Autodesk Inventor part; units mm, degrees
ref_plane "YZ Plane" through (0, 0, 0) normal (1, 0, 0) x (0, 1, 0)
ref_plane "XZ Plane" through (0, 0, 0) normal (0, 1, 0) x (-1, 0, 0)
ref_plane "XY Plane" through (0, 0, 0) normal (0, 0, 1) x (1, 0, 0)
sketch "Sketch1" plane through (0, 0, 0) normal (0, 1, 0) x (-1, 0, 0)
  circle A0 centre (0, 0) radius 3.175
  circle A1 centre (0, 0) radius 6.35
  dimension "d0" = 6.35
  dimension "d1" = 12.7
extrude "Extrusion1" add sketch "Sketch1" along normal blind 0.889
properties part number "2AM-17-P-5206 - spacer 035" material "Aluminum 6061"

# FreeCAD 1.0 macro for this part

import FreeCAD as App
import Part
import Sketcher
from FreeCAD import Vector
Q = App.Units.Quantity

doc = App.newDocument("Part")
body = doc.addObject("PartDesign::Body", "Body")

sketch1 = doc.addObject("Sketcher::SketchObject", "Sketch")
body.addObject(sketch1)
sketch1.AttachmentSupport = (doc.XZ_Plane, [""])
sketch1.MapMode = "FlatFace"
sketch1.addGeometry([
    Part.Circle(Vector(0, 0, 0), Vector(0, 0, 1), 6.3),
    Part.Circle(Vector(0, 0, 0), Vector(0, 0, 1), 3.2),
], False)
sketch1.addConstraint([
    Sketcher.Constraint("Coincident", 0, 3, -1, 1),
    Sketcher.Constraint("Coincident", 1, 3, -1, 1),
    Sketcher.Constraint("Diameter", 0, Q("0.5 in")),
    Sketcher.Constraint("Diameter", 1, Q("0.25 in")),
])
pad1 = doc.addObject("PartDesign::Pad", "Pad")
body.addObject(pad1)
pad1.Profile = sketch1
pad1.Length = Q("0.035 in")
pad1.Reversed = True

doc.recompute()
